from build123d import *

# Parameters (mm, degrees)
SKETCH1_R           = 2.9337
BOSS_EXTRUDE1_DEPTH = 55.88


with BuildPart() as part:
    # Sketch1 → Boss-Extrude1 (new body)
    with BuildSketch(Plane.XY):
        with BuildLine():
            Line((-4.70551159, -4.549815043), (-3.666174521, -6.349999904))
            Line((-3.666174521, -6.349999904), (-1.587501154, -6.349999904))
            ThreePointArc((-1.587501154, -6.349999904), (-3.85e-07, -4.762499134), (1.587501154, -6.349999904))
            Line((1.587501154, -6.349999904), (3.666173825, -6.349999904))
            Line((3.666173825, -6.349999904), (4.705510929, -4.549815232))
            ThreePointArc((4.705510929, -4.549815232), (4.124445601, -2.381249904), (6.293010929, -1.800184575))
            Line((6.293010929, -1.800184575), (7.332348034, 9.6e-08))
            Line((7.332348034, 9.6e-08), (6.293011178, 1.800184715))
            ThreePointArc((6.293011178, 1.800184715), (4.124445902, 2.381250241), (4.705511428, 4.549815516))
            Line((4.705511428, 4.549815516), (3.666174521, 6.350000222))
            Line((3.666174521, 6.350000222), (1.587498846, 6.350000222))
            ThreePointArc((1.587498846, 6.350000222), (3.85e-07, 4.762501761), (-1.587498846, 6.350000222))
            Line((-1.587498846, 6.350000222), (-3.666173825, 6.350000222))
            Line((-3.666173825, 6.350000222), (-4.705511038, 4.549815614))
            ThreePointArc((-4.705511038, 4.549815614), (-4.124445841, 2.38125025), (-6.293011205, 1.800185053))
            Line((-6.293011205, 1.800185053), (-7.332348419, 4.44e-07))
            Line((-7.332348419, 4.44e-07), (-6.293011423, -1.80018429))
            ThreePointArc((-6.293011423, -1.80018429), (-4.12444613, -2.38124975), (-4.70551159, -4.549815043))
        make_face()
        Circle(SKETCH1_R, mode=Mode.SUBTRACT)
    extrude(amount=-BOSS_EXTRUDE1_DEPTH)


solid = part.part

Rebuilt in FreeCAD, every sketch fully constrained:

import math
import FreeCAD as App
import Part
import Sketcher
Q = App.Units.Quantity

doc = App.newDocument("Part")
body = doc.addObject("PartDesign::Body", "Body")

sketch1 = body.newObject("Sketcher::SketchObject", "Sketch")
sketch1.AttachmentSupport = (doc.getObject("XY_Plane"), [""])
sketch1.MapMode = "FlatFace"
sketch1.addGeometry([
    Part.LineSegment(App.Vector(-4.7, -4.5, 0), App.Vector(-3.7, -6.3, 0)),
    Part.LineSegment(App.Vector(-3.7, -6.3, 0), App.Vector(-1.6, -6.3, 0)),
    Part.ArcOfCircle(Part.Circle(App.Vector(0, -6.4, 0), App.Vector(0, 0, 1), 1.6), math.radians(0), math.radians(180)),
    Part.LineSegment(App.Vector(1.6, -6.3, 0), App.Vector(3.7, -6.3, 0)),
    Part.LineSegment(App.Vector(3.7, -6.3, 0), App.Vector(4.7, -4.5, 0)),
    Part.ArcOfCircle(Part.Circle(App.Vector(5.5, -3.2, 0), App.Vector(0, 0, 1), 1.6), math.radians(60), math.radians(240)),
    Part.LineSegment(App.Vector(6.3, -1.8, 0), App.Vector(7.3, 0, 0)),
    Part.LineSegment(App.Vector(7.3, 0, 0), App.Vector(6.3, 1.8, 0)),
    Part.ArcOfCircle(Part.Circle(App.Vector(5.5, 3.2, 0), App.Vector(0, 0, 1), 1.6), math.radians(120), math.radians(300)),
    Part.LineSegment(App.Vector(4.7, 4.5, 0), App.Vector(3.7, 6.4, 0)),
    Part.LineSegment(App.Vector(3.7, 6.4, 0), App.Vector(1.6, 6.4, 0)),
    Part.ArcOfCircle(Part.Circle(App.Vector(0, 6.4, 0), App.Vector(0, 0, 1), 1.6), math.radians(-180), math.radians(0)),
    Part.LineSegment(App.Vector(-1.6, 6.4, 0), App.Vector(-3.7, 6.4, 0)),
    Part.LineSegment(App.Vector(-3.7, 6.4, 0), App.Vector(-4.7, 4.5, 0)),
    Part.ArcOfCircle(Part.Circle(App.Vector(-5.5, 3.2, 0), App.Vector(0, 0, 1), 1.6), math.radians(-120), math.radians(60)),
    Part.LineSegment(App.Vector(-6.3, 1.8, 0), App.Vector(-7.3, 0, 0)),
    Part.LineSegment(App.Vector(-7.3, 0, 0), App.Vector(-6.3, -1.8, 0)),
    Part.ArcOfCircle(Part.Circle(App.Vector(-5.5, -3.2, 0), App.Vector(0, 0, 1), 1.6), math.radians(-60), math.radians(120)),
    Part.Circle(App.Vector(0, 0, 0), App.Vector(0, 0, 1), 2.9),
], False)
sketch1.addConstraint([
    Sketcher.Constraint("Coincident", 0, 2, 1, 1),
    Sketcher.Constraint("Coincident", 1, 2, 2, 2),
    Sketcher.Constraint("Coincident", 2, 1, 3, 1),
    Sketcher.Constraint("Coincident", 3, 2, 4, 1),
    Sketcher.Constraint("Coincident", 4, 2, 5, 2),
    Sketcher.Constraint("Coincident", 5, 1, 6, 1),
    Sketcher.Constraint("Coincident", 6, 2, 7, 1),
    Sketcher.Constraint("Coincident", 7, 2, 8, 2),
    Sketcher.Constraint("Coincident", 8, 1, 9, 1),
    Sketcher.Constraint("Coincident", 9, 2, 10, 1),
    Sketcher.Constraint("Coincident", 10, 2, 11, 2),
    Sketcher.Constraint("Coincident", 11, 1, 12, 1),
    Sketcher.Constraint("Coincident", 12, 2, 13, 1),
    Sketcher.Constraint("Coincident", 13, 2, 14, 2),
    Sketcher.Constraint("Coincident", 14, 1, 15, 1),
    Sketcher.Constraint("Coincident", 15, 2, 16, 1),
    Sketcher.Constraint("Coincident", 16, 2, 17, 2),
    Sketcher.Constraint("Coincident", 17, 1, 0, 1),
    Sketcher.Constraint("Horizontal", 1),
    Sketcher.Constraint("Horizontal", 3),
    Sketcher.Constraint("Horizontal", 10),
    Sketcher.Constraint("Horizontal", 12),
    Sketcher.Constraint("Coincident", 18, 3, -1, 1),
    Sketcher.Constraint("Equal", 2, 5),
    Sketcher.Constraint("Equal", 5, 8),
    Sketcher.Constraint("Equal", 8, 11),
    Sketcher.Constraint("Equal", 11, 14),
    Sketcher.Constraint("Equal", 14, 17),
    Sketcher.Constraint("Symmetric", 2, 3, 11, 3, -1, 1),
    Sketcher.Constraint("Symmetric", 5, 3, 14, 3, -1, 1),
    Sketcher.Constraint("Symmetric", 8, 3, 17, 3, -1, 1),
    Sketcher.Constraint("Symmetric", 0, 2, 9, 2, -1, 1),
    Sketcher.Constraint("Symmetric", 3, 2, 12, 2, -1, 1),
    Sketcher.Constraint("Symmetric", 6, 2, 15, 2, -1, 1),
    Sketcher.Constraint("Symmetric", 8, 3, 14, 3, -2),
    Sketcher.Constraint("Symmetric", 1, 2, 2, 1, -2),
    Sketcher.Constraint("PointOnObject", 6, 2, -1),
    Sketcher.Constraint("Parallel", 4, 6),
    Sketcher.Constraint("Parallel", 0, 7),
    Sketcher.Constraint("Parallel", 7, 9),
    Sketcher.Constraint("Parallel", 6, 13),
    Sketcher.Constraint("Parallel", 13, 15),
    Sketcher.Constraint("Parallel", 9, 16),
    Sketcher.Constraint("Horizontal", 2, 3, 0, 2),
    Sketcher.Constraint("Horizontal", 8, 1, 13, 2),
    Sketcher.Constraint("Horizontal", 7, 2, 14, 1),
    Sketcher.Constraint("Equal", 4, 6),
    Sketcher.Constraint("Diameter", 18, Q("0.231 in")),
    Sketcher.Constraint("Angle", 0, Q("-60.000003 deg")),
    Sketcher.Constraint("Radius", 2, Q("0.0625 in")),
    Sketcher.Constraint("DistanceY", 2, 3, 11, 3, Q("0.5 in")),
    Sketcher.Constraint("DistanceY", 5, 3, 8, 3, Q("0.25 in")),
    Sketcher.Constraint("DistanceX", 4, 2, 5, 3, Q("0.03125 in")),
    Sketcher.Constraint("DistanceX", 1, 1, 1, 2, 2.078673),
])
pad1 = body.newObject("PartDesign::Pad", "Pad")
pad1.Profile = sketch1
pad1.Length = Q("2.2 in")
pad1.Reversed = True

doc.recompute()
